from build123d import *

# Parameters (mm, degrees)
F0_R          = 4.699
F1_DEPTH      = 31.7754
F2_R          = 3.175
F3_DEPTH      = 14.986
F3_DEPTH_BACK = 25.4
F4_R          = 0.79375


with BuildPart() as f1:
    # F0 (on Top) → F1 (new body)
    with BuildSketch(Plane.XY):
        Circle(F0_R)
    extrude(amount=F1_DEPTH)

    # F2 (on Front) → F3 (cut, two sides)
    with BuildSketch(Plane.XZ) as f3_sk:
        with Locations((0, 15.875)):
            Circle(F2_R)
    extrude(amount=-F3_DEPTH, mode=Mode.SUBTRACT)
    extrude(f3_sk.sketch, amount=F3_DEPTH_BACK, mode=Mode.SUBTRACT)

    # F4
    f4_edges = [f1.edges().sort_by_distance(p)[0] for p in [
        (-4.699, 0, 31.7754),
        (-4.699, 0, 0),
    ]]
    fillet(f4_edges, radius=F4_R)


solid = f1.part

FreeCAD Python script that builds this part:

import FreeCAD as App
import Part
import Sketcher

V = App.Vector
Q = App.Units.Quantity


def edges_at(feature, points):
    """Names of the edges that pass closest to the given points."""
    edges = feature.Shape.Edges
    near = lambda p: min(range(len(edges)), key=lambda i: edges[i].distToShape(Part.Vertex(*p))[0])
    return sorted({f"Edge{near(p) + 1}" for p in points})

doc = App.newDocument("Part")
params = doc.addObject("Spreadsheet::Sheet", "Params")
for row, (alias, value) in enumerate([
    ("sketch1_diameter", "0.37 in"),
    ("pad1_length", "1.251 in"),
    ("sketch2_diameter", "0.25 in"),
    ("fillet_radius", "0.03125 in"),
], start=1):
    params.set(f"A{row}", alias)
    params.set(f"B{row}", "=" + value)
    params.setAlias(f"B{row}", alias)

body = doc.addObject("PartDesign::Body", "Body")

sketch1 = doc.addObject("Sketcher::SketchObject", "Sketch")
body.addObject(sketch1)
sketch1.AttachmentSupport = (doc.XY_Plane, [""])
sketch1.MapMode = "FlatFace"
sketch1.addGeometry(Part.Circle(V(0, 0, 0), V(0, 0, 1), 4.7), False)
sketch1.addConstraint(Sketcher.Constraint("Coincident", 0, 3, -1, 1))
sketch1.addConstraint(Sketcher.Constraint("Diameter", 0, Q("0.37 in")))
sketch1.setExpression("Constraints[1]", "Params.sketch1_diameter")
pad1 = doc.addObject("PartDesign::Pad", "Pad")
body.addObject(pad1)
pad1.Profile = sketch1
pad1.setExpression("Length", "Params.pad1_length")

sketch2 = doc.addObject("Sketcher::SketchObject", "Sketch001")
body.addObject(sketch2)
sketch2.AttachmentSupport = (doc.XZ_Plane, [""])
sketch2.MapMode = "FlatFace"
sketch2.addGeometry(Part.Circle(V(0, 15.9, 0), V(0, 0, 1), 3.2), False)
sketch2.addConstraint(Sketcher.Constraint("PointOnObject", 0, 3, -2))
sketch2.addConstraint(Sketcher.Constraint("Diameter", 0, Q("0.25 in")))
sketch2.addConstraint(Sketcher.Constraint("DistanceY", -1, 1, 0, 3, Q("0.625 in")))
sketch2.setExpression("Constraints[1]", "Params.sketch2_diameter")
pocket1 = doc.addObject("PartDesign::Pocket", "Pocket")
body.addObject(pocket1)
pocket1.Profile = sketch2
pocket1.Type = "ThroughAll"
pocket1.Midplane = True
doc.recompute()

fillet = doc.addObject("PartDesign::Fillet", "Fillet")
body.addObject(fillet)
fillet.Base = (pocket1, edges_at(pocket1, [(-4.699, 0, 31.775), (-4.699, 0, 0)]))
fillet.setExpression("Radius", "Params.fillet_radius")

doc.recompute()
